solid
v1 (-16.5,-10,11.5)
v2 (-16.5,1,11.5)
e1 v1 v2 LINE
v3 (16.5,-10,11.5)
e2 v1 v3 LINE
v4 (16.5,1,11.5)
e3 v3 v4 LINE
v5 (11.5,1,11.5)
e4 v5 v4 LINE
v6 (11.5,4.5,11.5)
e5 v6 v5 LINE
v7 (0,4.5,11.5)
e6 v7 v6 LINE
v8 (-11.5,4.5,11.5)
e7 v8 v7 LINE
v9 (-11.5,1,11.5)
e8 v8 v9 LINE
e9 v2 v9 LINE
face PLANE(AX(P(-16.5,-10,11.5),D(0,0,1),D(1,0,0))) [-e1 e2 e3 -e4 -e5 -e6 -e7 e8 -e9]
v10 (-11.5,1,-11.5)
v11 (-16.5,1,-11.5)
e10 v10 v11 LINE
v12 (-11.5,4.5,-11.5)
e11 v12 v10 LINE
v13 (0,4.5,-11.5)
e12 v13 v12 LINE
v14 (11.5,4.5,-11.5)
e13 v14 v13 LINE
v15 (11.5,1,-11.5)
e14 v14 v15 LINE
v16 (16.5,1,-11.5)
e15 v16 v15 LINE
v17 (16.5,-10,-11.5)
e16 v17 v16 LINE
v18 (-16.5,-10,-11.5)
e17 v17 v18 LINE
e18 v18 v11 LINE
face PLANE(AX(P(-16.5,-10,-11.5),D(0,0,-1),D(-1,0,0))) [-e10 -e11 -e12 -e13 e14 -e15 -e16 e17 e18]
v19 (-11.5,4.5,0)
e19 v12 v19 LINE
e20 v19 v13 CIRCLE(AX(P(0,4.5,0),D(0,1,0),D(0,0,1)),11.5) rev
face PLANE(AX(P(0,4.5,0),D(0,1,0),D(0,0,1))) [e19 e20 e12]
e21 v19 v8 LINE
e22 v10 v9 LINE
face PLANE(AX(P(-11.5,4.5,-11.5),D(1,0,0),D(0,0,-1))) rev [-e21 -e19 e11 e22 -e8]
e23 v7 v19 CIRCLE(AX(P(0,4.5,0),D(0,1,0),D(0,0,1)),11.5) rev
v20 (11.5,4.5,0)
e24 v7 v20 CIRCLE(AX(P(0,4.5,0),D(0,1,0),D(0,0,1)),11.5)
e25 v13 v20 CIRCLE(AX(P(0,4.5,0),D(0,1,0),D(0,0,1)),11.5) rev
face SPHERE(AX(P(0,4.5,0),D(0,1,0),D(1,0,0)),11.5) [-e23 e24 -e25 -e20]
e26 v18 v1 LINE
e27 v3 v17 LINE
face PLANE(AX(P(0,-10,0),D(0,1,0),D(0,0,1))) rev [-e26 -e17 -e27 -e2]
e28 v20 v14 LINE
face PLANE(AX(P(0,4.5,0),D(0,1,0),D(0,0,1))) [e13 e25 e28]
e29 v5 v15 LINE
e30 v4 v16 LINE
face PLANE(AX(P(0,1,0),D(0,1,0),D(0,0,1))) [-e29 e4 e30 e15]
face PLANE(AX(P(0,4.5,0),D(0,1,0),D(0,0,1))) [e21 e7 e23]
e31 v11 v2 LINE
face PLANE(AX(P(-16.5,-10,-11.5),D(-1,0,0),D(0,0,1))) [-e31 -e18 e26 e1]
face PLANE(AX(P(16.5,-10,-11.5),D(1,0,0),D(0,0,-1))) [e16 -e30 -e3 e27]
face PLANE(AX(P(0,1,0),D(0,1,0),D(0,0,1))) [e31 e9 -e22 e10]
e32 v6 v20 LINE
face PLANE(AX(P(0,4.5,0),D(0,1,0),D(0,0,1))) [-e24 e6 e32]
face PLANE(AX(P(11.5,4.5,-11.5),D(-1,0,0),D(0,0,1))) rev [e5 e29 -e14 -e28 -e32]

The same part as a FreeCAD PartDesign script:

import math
import FreeCAD as App
import Part
import Sketcher
from FreeCAD import Vector

doc = App.newDocument("Part")
params = doc.addObject("Spreadsheet::Sheet", "Params")
for row, (alias, value) in enumerate([
    ("sketch1_width", "33 mm"),
    ("sketch1_height", "23 mm"),
    ("pad1_length", "1 mm"),
    ("pad1_length2", "10 mm"),
    ("sketch2_width", "23 mm"),
    ("pad2_length", "3.5 mm"),
    ("sketch3_radius", "11.5 mm"),
    ("revolution_angle", "360 deg"),
], start=1):
    params.set(f"A{row}", alias)
    params.set(f"B{row}", "=" + value)
    params.setAlias(f"B{row}", alias)

body = doc.addObject("PartDesign::Body", "Body")

# Sketch on XZ plane
sketch1 = body.newObject("Sketcher::SketchObject", "Sketch")
sketch1.AttachmentSupport = (doc.getObject("XZ_Plane"), [""])
sketch1.MapMode = "FlatFace"
sketch1.addGeometry(Part.LineSegment(Vector(-16, -12, 0), Vector(-16, 12, 0)), False)
sketch1.addGeometry(Part.LineSegment(Vector(-16, 12, 0), Vector(16, 12, 0)), False)
sketch1.addGeometry(Part.LineSegment(Vector(16, 12, 0), Vector(16, -12, 0)), False)
sketch1.addGeometry(Part.LineSegment(Vector(16, -12, 0), Vector(-16, -12, 0)), False)
sketch1.addConstraint(Sketcher.Constraint("Coincident", 0, 2, 1, 1))
sketch1.addConstraint(Sketcher.Constraint("Coincident", 1, 2, 2, 1))
sketch1.addConstraint(Sketcher.Constraint("Coincident", 2, 2, 3, 1))
sketch1.addConstraint(Sketcher.Constraint("Coincident", 3, 2, 0, 1))
sketch1.addConstraint(Sketcher.Constraint("Vertical", 0))
sketch1.addConstraint(Sketcher.Constraint("Horizontal", 1))
sketch1.addConstraint(Sketcher.Constraint("Vertical", 2))
sketch1.addConstraint(Sketcher.Constraint("Horizontal", 3))
sketch1.addConstraint(Sketcher.Constraint("Symmetric", 0, 2, 2, 2, -1, 1))
sketch1.addConstraint(Sketcher.Constraint("DistanceX", 1, 1, 1, 2, 33.0))
sketch1.addConstraint(Sketcher.Constraint("DistanceY", 0, 1, 0, 2, 23.0))
sketch1.setExpression("Constraints[9]", "Params.sketch1_width")
sketch1.setExpression("Constraints[10]", "Params.sketch1_height")
pad1 = body.newObject("PartDesign::Pad", "Pad")
pad1.Profile = sketch1
pad1.Type = "TwoLengths"
pad1.setExpression("Length", "Params.pad1_length")
pad1.setExpression("Length2", "Params.pad1_length2")
pad1.Reversed = True

# Sketch on XZ plane
sketch2 = body.newObject("Sketcher::SketchObject", "Sketch001")
sketch2.AttachmentSupport = (doc.getObject("XZ_Plane"), [""])
sketch2.MapMode = "FlatFace"
sketch2.AttachmentOffset = App.Placement(Vector(0, 0, -1), App.Rotation())
sketch2.addGeometry(Part.LineSegment(Vector(-12, -12, 0), Vector(-12, 12, 0)), False)
sketch2.addGeometry(Part.LineSegment(Vector(-12, 12, 0), Vector(12, 12, 0)), False)
sketch2.addGeometry(Part.LineSegment(Vector(12, 12, 0), Vector(12, -12, 0)), False)
sketch2.addGeometry(Part.LineSegment(Vector(12, -12, 0), Vector(-12, -12, 0)), False)
sketch2.addConstraint(Sketcher.Constraint("Coincident", 0, 2, 1, 1))
sketch2.addConstraint(Sketcher.Constraint("Coincident", 1, 2, 2, 1))
sketch2.addConstraint(Sketcher.Constraint("Coincident", 2, 2, 3, 1))
sketch2.addConstraint(Sketcher.Constraint("Coincident", 3, 2, 0, 1))
sketch2.addConstraint(Sketcher.Constraint("Vertical", 0))
sketch2.addConstraint(Sketcher.Constraint("Horizontal", 1))
sketch2.addConstraint(Sketcher.Constraint("Vertical", 2))
sketch2.addConstraint(Sketcher.Constraint("Horizontal", 3))
sketch2.addConstraint(Sketcher.Constraint("Symmetric", 0, 2, 2, 2, -1, 1))
sketch2.addConstraint(Sketcher.Constraint("Equal", 3, 0))
sketch2.addConstraint(Sketcher.Constraint("DistanceX", 1, 1, 1, 2, 23.0))
sketch2.setExpression("Constraints[10]", "Params.sketch2_width")
pad2 = body.newObject("PartDesign::Pad", "Pad001")
pad2.Profile = sketch2
pad2.setExpression("Length", "Params.pad2_length")
pad2.Reversed = True

# Sketch on XY plane
sketch3 = body.newObject("Sketcher::SketchObject", "Sketch002")
sketch3.AttachmentSupport = (doc.getObject("XY_Plane"), [""])
sketch3.MapMode = "FlatFace"
sketch3.addGeometry(Part.LineSegment(Vector(0, 4, 0), Vector(12, 4, 0)), False)
sketch3.addGeometry(Part.ArcOfCircle(Part.Circle(Vector(0, 5, 0), Vector(0, 0, 1), 11), math.radians(0), math.radians(90)), False)
sketch3.addGeometry(Part.LineSegment(Vector(0, 16, 0), Vector(0, 4, 0)), False)
sketch3.addConstraint(Sketcher.Constraint("Coincident", 0, 2, 1, 1))
sketch3.addConstraint(Sketcher.Constraint("Coincident", 1, 2, 2, 1))
sketch3.addConstraint(Sketcher.Constraint("Coincident", 2, 2, 0, 1))
sketch3.addConstraint(Sketcher.Constraint("Horizontal", 0))
sketch3.addConstraint(Sketcher.Constraint("Vertical", 2))
sketch3.addConstraint(Sketcher.Constraint("Coincident", 2, 2, 1, 3))
sketch3.addConstraint(Sketcher.Constraint("PointOnObject", 1, 3, -2))
sketch3.addConstraint(Sketcher.Constraint("Radius", 1, 11.5))
sketch3.addConstraint(Sketcher.Constraint("DistanceY", -1, 1, 1, 2, 16.0))
sketch3.setExpression("Constraints[7]", "Params.sketch3_radius")
revolution = body.newObject("PartDesign::Revolution", "Revolution")
revolution.Profile = sketch3
revolution.ReferenceAxis = (sketch3, ["V_Axis"])
revolution.setExpression("Angle", "Params.revolution_angle")

doc.recompute()
